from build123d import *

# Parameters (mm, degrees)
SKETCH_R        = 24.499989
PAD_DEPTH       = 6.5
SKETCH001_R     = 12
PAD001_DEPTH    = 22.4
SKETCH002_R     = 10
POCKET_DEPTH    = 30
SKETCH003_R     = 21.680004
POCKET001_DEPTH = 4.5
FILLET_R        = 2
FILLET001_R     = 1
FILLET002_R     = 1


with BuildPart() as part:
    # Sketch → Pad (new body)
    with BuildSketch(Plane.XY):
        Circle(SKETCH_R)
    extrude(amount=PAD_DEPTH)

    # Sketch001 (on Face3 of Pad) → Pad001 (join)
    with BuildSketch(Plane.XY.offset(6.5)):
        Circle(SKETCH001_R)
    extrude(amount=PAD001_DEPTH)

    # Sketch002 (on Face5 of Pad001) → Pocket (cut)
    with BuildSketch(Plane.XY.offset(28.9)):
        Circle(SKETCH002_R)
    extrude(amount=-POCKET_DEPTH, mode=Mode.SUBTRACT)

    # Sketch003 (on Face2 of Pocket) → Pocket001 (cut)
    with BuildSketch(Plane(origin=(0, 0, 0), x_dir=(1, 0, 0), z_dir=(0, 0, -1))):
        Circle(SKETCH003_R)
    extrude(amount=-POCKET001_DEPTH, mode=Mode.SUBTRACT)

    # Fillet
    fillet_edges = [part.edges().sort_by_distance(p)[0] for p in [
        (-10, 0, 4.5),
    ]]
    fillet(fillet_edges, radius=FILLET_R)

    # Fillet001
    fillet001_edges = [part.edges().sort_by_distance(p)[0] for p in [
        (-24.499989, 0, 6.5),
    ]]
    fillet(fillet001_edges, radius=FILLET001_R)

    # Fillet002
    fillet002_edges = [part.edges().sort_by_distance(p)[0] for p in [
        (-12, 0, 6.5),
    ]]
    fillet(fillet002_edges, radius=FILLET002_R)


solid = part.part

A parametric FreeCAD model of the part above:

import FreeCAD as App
import Part
import Sketcher

V = App.Vector
Q = App.Units.Quantity


def edges_at(feature, points):
    """Names of the edges that pass closest to the given points."""
    edges = feature.Shape.Edges
    near = lambda p: min(range(len(edges)), key=lambda i: edges[i].distToShape(Part.Vertex(*p))[0])
    return sorted({f"Edge{near(p) + 1}" for p in points})

doc = App.newDocument("Part")
body = doc.addObject("PartDesign::Body", "Body")

# Sketch on XY plane
sketch1 = doc.addObject("Sketcher::SketchObject", "Sketch")
body.addObject(sketch1)
sketch1.AttachmentSupport = (doc.XY_Plane, [""])
sketch1.MapMode = "FlatFace"
sketch1.addGeometry(Part.Circle(V(0, 0, 0), V(0, 0, 1), 24), False)
sketch1.addConstraint([
    Sketcher.Constraint("Coincident", 0, 3, -1, 1),
    Sketcher.Constraint("Diameter", 0, Q("48.999978 mm")),
])
pad1 = doc.addObject("PartDesign::Pad", "Pad")
body.addObject(pad1)
pad1.Profile = sketch1
pad1.Length = 6.5

# Sketch on XY plane
sketch2 = doc.addObject("Sketcher::SketchObject", "Sketch001")
body.addObject(sketch2)
sketch2.AttachmentSupport = (doc.XY_Plane, [""])
sketch2.MapMode = "FlatFace"
sketch2.AttachmentOffset = App.Placement(V(0, 0, 6.5), App.Rotation())
sketch2.addGeometry(Part.Circle(V(0, 0, 0), V(0, 0, 1), 12), False)
sketch2.addConstraint([
    Sketcher.Constraint("Coincident", 0, 3, -1, 1),
    Sketcher.Constraint("Diameter", 0, Q("24 mm")),
])
pad2 = doc.addObject("PartDesign::Pad", "Pad001")
body.addObject(pad2)
pad2.Profile = sketch2
pad2.Length = 22.4

# Sketch on XY plane
sketch3 = doc.addObject("Sketcher::SketchObject", "Sketch002")
body.addObject(sketch3)
sketch3.AttachmentSupport = (doc.XY_Plane, [""])
sketch3.MapMode = "FlatFace"
sketch3.AttachmentOffset = App.Placement(V(0, 0, 28.9), App.Rotation())
sketch3.addGeometry(Part.Circle(V(0, 0, 0), V(0, 0, 1), 10), False)
sketch3.addConstraint([
    Sketcher.Constraint("Coincident", 0, 3, -1, 1),
    Sketcher.Constraint("Diameter", 0, Q("20 mm")),
])
pocket1 = doc.addObject("PartDesign::Pocket", "Pocket")
body.addObject(pocket1)
pocket1.Profile = sketch3
pocket1.Length = 30

# Sketch on XY plane
sketch4 = doc.addObject("Sketcher::SketchObject", "Sketch003")
body.addObject(sketch4)
sketch4.AttachmentSupport = (doc.XY_Plane, [""])
sketch4.MapMode = "FlatFace"
sketch4.addGeometry(Part.Circle(V(0, 0, 0), V(0, 0, 1), 22), False)
sketch4.addConstraint([
    Sketcher.Constraint("Coincident", 0, 3, -1, 1),
    Sketcher.Constraint("Diameter", 0, Q("43.360008 mm")),
])
pocket2 = doc.addObject("PartDesign::Pocket", "Pocket001")
body.addObject(pocket2)
pocket2.Profile = sketch4
pocket2.Length = 4.5
pocket2.Reversed = True
doc.recompute()

fillet = doc.addObject("PartDesign::Fillet", "Fillet")
body.addObject(fillet)
fillet.Base = (pocket2, edges_at(pocket2, [(-10, 0, 4.5)]))
fillet.Radius = 2
doc.recompute()

fillet2 = doc.addObject("PartDesign::Fillet", "Fillet001")
body.addObject(fillet2)
fillet2.Base = (fillet, edges_at(fillet, [(-24.5, 0, 6.5)]))
fillet2.Radius = 1
doc.recompute()

fillet3 = doc.addObject("PartDesign::Fillet", "Fillet002")
body.addObject(fillet3)
fillet3.Base = (fillet2, edges_at(fillet2, [(-12, 0, 6.5)]))
fillet3.Radius = 1

doc.recompute()
